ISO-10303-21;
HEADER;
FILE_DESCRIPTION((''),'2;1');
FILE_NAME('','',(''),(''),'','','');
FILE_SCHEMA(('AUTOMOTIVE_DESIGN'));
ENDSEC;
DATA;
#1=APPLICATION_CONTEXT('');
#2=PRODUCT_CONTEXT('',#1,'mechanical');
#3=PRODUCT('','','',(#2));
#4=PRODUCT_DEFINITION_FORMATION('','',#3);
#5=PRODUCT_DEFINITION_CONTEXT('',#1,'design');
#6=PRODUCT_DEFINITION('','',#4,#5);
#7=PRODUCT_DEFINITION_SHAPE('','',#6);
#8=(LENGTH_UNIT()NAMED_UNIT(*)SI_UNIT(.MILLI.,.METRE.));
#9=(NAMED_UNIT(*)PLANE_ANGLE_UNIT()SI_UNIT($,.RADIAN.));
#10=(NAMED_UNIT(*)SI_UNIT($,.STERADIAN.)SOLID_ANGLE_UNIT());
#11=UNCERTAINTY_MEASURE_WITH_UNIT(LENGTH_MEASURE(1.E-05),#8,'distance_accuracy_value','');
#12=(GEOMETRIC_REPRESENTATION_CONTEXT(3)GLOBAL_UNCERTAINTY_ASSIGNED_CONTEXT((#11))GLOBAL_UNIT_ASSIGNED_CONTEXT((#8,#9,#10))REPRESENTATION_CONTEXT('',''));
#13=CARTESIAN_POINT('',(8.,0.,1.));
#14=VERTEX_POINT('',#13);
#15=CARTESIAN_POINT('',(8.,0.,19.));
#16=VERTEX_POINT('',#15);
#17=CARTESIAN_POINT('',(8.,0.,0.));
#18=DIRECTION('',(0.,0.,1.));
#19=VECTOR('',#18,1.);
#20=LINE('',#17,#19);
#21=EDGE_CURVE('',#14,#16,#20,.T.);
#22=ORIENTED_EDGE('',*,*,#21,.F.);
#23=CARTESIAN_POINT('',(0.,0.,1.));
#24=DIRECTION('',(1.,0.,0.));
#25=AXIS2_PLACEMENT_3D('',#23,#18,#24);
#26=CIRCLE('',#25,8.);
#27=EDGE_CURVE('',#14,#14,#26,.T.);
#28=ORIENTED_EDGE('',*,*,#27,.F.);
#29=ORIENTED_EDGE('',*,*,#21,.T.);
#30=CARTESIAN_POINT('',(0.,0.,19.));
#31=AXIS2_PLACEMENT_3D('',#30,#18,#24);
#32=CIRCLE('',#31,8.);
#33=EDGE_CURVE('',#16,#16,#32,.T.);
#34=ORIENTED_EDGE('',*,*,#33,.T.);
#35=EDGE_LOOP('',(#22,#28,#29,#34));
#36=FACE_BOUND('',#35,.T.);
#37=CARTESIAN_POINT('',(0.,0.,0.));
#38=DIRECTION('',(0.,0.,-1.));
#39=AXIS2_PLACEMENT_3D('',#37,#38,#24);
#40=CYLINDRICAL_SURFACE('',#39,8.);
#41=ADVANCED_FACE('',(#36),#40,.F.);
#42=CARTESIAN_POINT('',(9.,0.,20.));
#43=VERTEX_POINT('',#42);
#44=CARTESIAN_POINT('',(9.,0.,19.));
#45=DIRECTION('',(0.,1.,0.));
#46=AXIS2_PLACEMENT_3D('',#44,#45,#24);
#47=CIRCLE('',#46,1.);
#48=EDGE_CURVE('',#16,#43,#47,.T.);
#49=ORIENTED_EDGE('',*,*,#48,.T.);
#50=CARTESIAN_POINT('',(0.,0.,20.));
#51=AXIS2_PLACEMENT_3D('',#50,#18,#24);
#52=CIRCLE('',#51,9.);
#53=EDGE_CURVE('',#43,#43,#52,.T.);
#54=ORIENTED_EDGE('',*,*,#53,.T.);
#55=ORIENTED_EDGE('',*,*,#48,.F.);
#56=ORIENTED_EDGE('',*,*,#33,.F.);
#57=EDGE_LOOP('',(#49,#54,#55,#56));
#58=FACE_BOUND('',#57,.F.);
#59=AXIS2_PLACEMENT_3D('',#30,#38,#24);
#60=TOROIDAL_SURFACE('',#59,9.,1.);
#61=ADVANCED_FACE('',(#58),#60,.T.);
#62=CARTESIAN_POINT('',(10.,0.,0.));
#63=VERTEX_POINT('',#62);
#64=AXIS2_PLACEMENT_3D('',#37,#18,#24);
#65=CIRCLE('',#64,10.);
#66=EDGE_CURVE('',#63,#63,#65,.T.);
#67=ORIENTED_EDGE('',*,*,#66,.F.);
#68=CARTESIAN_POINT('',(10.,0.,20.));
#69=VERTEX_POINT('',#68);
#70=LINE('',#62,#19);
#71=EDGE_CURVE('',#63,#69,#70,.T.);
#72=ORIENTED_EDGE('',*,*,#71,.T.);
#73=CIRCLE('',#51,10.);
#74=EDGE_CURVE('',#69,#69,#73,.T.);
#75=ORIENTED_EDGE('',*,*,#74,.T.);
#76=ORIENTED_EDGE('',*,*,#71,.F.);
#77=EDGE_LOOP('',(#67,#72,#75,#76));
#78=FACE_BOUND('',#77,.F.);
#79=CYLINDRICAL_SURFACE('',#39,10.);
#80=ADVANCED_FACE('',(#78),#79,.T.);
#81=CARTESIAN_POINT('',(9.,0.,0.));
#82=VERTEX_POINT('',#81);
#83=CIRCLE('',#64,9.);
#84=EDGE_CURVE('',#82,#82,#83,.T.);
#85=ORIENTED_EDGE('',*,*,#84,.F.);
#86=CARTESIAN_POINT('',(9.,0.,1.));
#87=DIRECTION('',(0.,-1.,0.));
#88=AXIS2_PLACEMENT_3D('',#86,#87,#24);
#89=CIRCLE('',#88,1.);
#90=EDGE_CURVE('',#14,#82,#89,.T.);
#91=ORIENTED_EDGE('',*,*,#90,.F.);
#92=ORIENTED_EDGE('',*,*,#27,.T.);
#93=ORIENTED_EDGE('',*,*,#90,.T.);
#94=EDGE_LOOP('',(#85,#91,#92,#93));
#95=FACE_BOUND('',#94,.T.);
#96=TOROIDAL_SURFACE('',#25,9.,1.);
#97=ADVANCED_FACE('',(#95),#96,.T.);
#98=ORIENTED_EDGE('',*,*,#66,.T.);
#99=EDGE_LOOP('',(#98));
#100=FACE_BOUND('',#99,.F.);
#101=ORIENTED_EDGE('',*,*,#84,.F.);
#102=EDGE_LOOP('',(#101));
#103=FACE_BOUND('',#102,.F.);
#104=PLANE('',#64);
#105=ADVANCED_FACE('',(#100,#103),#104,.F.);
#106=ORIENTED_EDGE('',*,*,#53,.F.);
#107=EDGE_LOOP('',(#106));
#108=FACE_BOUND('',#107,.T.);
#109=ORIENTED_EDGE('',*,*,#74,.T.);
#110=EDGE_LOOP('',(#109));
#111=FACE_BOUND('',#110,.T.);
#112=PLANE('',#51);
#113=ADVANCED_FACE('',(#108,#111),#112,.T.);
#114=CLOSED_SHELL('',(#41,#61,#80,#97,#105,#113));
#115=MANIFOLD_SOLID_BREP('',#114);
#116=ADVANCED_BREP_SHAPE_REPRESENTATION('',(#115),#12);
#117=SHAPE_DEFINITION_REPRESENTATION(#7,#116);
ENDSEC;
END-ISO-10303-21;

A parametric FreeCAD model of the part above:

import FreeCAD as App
import Part
import Sketcher
from FreeCAD import Vector


def edges_at(feature, points):
    """Names of the edges that pass closest to the given points."""
    edges = feature.Shape.Edges
    near = lambda p: min(range(len(edges)), key=lambda i: edges[i].distToShape(Part.Vertex(*p))[0])
    return sorted({f"Edge{near(p) + 1}" for p in points})

doc = App.newDocument("Part")
body = doc.addObject("PartDesign::Body", "Body")

# Sketch on XY plane
sketch1 = body.newObject("Sketcher::SketchObject", "Sketch")
sketch1.AttachmentSupport = (doc.getObject("XY_Plane"), [""])
sketch1.MapMode = "FlatFace"
sketch1.addGeometry([
    Part.Circle(Vector(0, 0, 0), Vector(0, 0, 1), 10),
    Part.Circle(Vector(0, 0, 0), Vector(0, 0, 1), 8),
], False)
sketch1.addConstraint([
    Sketcher.Constraint("Coincident", 0, 3, -1, 1),
    Sketcher.Constraint("Coincident", 1, 3, -1, 1),
    Sketcher.Constraint("Diameter", 0, 20.0),
    Sketcher.Constraint("Diameter", 1, 16.0),
])
pad1 = body.newObject("PartDesign::Pad", "Pad")
pad1.Profile = sketch1
pad1.Length = 20
doc.recompute()

fillet = body.newObject("PartDesign::Fillet", "Fillet")
fillet.Base = (pad1, edges_at(pad1, [(-8, 0, 20)]))
fillet.Radius = 1
doc.recompute()

fillet2 = body.newObject("PartDesign::Fillet", "Fillet001")
fillet2.Base = (fillet, edges_at(fillet, [(-8, 0, 0)]))
fillet2.Radius = 1

doc.recompute()
